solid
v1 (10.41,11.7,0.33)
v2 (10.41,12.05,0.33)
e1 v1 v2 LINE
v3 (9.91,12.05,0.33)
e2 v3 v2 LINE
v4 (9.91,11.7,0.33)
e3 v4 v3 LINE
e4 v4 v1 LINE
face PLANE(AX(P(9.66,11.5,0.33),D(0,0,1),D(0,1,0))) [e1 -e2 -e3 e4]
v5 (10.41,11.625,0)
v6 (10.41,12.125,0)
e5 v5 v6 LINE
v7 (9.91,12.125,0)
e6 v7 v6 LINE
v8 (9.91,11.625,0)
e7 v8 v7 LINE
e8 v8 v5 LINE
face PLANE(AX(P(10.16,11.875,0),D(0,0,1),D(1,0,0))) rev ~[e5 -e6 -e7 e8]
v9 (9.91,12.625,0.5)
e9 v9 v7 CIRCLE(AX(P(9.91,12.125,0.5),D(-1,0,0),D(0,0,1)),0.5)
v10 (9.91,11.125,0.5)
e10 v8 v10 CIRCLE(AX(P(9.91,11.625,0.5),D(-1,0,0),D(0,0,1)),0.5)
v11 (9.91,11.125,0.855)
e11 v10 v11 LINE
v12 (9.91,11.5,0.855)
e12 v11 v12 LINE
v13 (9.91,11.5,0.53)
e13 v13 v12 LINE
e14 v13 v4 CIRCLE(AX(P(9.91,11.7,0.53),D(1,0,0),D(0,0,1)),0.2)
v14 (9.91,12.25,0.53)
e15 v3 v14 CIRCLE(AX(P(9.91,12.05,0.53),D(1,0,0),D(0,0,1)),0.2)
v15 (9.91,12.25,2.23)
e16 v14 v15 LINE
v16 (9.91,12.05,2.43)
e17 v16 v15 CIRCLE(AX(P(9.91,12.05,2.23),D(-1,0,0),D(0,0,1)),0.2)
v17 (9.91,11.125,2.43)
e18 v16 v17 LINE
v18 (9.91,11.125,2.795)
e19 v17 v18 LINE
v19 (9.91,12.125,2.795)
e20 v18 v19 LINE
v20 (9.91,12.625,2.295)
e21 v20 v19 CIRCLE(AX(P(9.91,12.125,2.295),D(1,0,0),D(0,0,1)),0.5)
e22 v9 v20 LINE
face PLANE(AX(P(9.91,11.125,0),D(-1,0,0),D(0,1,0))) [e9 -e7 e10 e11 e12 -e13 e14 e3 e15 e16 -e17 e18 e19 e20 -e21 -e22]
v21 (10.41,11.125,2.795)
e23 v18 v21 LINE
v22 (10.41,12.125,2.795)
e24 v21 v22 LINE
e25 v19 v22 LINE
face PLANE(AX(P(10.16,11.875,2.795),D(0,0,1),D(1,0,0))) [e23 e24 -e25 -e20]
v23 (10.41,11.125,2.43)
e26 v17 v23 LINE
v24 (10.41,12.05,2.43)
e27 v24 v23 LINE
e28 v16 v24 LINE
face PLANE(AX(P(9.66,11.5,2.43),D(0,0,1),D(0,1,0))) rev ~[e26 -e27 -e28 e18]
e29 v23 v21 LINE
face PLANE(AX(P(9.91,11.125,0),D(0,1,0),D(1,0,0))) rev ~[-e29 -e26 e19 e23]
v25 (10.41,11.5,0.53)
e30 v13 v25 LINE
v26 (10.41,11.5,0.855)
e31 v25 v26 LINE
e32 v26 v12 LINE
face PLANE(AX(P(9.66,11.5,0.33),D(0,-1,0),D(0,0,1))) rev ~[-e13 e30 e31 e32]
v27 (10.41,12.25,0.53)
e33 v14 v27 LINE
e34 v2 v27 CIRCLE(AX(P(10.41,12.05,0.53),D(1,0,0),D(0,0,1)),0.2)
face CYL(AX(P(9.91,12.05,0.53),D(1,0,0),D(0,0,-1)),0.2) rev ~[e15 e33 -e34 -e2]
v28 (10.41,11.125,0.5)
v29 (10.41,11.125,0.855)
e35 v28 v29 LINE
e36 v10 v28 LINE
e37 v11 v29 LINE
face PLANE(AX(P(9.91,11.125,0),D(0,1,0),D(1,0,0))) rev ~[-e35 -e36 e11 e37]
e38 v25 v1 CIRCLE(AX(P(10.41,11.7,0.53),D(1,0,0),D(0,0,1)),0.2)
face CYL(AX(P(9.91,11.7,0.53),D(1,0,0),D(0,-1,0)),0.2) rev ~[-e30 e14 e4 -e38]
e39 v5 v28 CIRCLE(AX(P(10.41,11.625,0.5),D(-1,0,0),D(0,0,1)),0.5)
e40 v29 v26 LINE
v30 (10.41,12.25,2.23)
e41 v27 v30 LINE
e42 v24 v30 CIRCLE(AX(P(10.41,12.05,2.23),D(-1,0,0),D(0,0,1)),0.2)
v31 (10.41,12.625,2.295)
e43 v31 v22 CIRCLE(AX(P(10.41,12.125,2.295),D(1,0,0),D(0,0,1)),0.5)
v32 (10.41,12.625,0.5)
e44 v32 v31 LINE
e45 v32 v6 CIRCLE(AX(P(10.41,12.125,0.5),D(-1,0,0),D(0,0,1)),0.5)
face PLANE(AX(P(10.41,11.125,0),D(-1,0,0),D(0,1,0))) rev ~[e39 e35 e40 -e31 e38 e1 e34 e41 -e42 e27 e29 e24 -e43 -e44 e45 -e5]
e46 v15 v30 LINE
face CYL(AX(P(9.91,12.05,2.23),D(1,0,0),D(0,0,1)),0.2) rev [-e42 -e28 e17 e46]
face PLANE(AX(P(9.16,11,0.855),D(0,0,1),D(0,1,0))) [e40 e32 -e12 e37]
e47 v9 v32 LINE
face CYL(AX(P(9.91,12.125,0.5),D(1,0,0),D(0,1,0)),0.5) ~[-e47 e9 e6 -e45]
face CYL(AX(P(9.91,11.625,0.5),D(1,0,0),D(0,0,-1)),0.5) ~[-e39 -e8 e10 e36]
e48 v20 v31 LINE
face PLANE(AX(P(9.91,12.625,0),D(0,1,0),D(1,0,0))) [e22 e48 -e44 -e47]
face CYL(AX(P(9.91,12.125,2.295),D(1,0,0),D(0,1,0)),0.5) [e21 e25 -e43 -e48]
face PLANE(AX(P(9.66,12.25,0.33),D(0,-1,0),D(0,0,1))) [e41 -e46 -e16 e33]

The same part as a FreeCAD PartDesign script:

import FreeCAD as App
import Part
import Sketcher
from FreeCAD import Vector
Q = App.Units.Quantity


def edges_at(feature, points):
    """Names of the edges that pass closest to the given points."""
    edges = feature.Shape.Edges
    near = lambda p: min(range(len(edges)), key=lambda i: edges[i].distToShape(Part.Vertex(*p))[0])
    return sorted({f"Edge{near(p) + 1}" for p in points})


def add_polygon(sketch, points):
    """Adds a closed chain of lines whose ends are joined by coincident constraints."""
    first, n = sketch.GeometryCount, len(points)
    for a, b in zip(points, points[1:] + points[:1]):
        sketch.addGeometry(Part.LineSegment(App.Vector(*a, 0), App.Vector(*b, 0)), False)
    for i in range(n):
        sketch.addConstraint(Sketcher.Constraint("Coincident", first + i, 2, first + (i + 1) % n, 1))

doc = App.newDocument("Part")
body = doc.addObject("PartDesign::Body", "Body")

sketch1 = body.newObject("Sketcher::SketchObject", "Sketch")
sketch1.AttachmentSupport = (doc.getObject("XY_Plane"), [""])
sketch1.MapMode = "FlatFace"
add_polygon(sketch1, [(-0.2, 12.6), (-0.2, 11.1), (0.2, 11.1), (0.2, 12.6)])
sketch1.addConstraint(Sketcher.Constraint("Vertical", 0))
sketch1.addConstraint(Sketcher.Constraint("Horizontal", 1))
sketch1.addConstraint(Sketcher.Constraint("Vertical", 2))
sketch1.addConstraint(Sketcher.Constraint("Horizontal", 3))
sketch1.addConstraint(Sketcher.Constraint("DistanceX", 1, 1, 1, 2, Q("0.5 mm")))
sketch1.addConstraint(Sketcher.Constraint("DistanceY", 0, 2, 0, 1, Q("1.5 mm")))
sketch1.addConstraint(Sketcher.Constraint("DistanceX", 0, 2, -1, 1, Q("0.25 mm")))
sketch1.addConstraint(Sketcher.Constraint("DistanceY", -1, 1, 0, 2, Q("11.125 mm")))
pad1 = body.newObject("PartDesign::Pad", "Pad")
pad1.Profile = sketch1
pad1.Length = 2.795
doc.recompute()

fillet = body.newObject("PartDesign::Fillet", "Fillet")
fillet.Base = (pad1, edges_at(pad1, [(0, 12.625, 0)]))
fillet.Radius = 0.5
doc.recompute()

fillet2 = body.newObject("PartDesign::Fillet", "Fillet001")
fillet2.Base = (fillet, edges_at(fillet, [(0, 12.625, 2.795)]))
fillet2.Radius = 0.5
doc.recompute()

fillet3 = body.newObject("PartDesign::Fillet", "Fillet002")
fillet3.Base = (fillet2, edges_at(fillet2, [(0, 11.125, 0)]))
fillet3.Radius = 0.5

sketch2 = body.newObject("Sketcher::SketchObject", "Sketch001")
sketch2.AttachmentSupport = (doc.getObject("YZ_Plane"), [""])
sketch2.MapMode = "FlatFace"
sketch2.AttachmentOffset = App.Placement(Vector(0, 0, -0.5), App.Rotation())
add_polygon(sketch2, [(11.5, 2.4), (11.5, 0.3), (12.2, 0.3), (12.2, 2.4)])
sketch2.addConstraint(Sketcher.Constraint("Vertical", 0))
sketch2.addConstraint(Sketcher.Constraint("Horizontal", 1))
sketch2.addConstraint(Sketcher.Constraint("Vertical", 2))
sketch2.addConstraint(Sketcher.Constraint("Horizontal", 3))
sketch2.addConstraint(Sketcher.Constraint("DistanceY", 0, 2, 0, 1, Q("2.1 mm")))
sketch2.addConstraint(Sketcher.Constraint("DistanceX", 1, 1, 1, 2, Q("0.75 mm")))
sketch2.addConstraint(Sketcher.Constraint("DistanceX", -1, 1, 0, 2, Q("11.5 mm")))
sketch2.addConstraint(Sketcher.Constraint("DistanceY", -1, 1, 0, 2, Q("0.33 mm")))
pocket1 = body.newObject("PartDesign::Pocket", "Pocket")
pocket1.Profile = sketch2
pocket1.Length = 1
pocket1.Reversed = True
doc.recompute()

fillet4 = body.newObject("PartDesign::Fillet", "Fillet003")
fillet4.Base = (pocket1, edges_at(pocket1, [(0, 11.5, 0.33)]))
fillet4.Radius = 0.2
doc.recompute()

fillet5 = body.newObject("PartDesign::Fillet", "Fillet004")
fillet5.Base = (fillet4, edges_at(fillet4, [(0, 12.25, 0.33)]))
fillet5.Radius = 0.2
doc.recompute()

fillet6 = body.newObject("PartDesign::Fillet", "Fillet005")
fillet6.Base = (fillet5, edges_at(fillet5, [(0, 11.5, 2.43)]))
fillet6.Radius = 0.2
doc.recompute()

fillet7 = body.newObject("PartDesign::Fillet", "Fillet006")
fillet7.Base = (fillet6, edges_at(fillet6, [(0, 12.25, 2.43)]))
fillet7.Radius = 0.2

sketch3 = body.newObject("Sketcher::SketchObject", "Sketch002")
sketch3.AttachmentSupport = (doc.getObject("YZ_Plane"), [""])
sketch3.MapMode = "FlatFace"
sketch3.AttachmentOffset = App.Placement(Vector(0, 0, -1), App.Rotation())
add_polygon(sketch3, [(11, 2.4), (11, 0.9), (12, 0.9), (12, 2.4)])
sketch3.addConstraint(Sketcher.Constraint("Vertical", 0))
sketch3.addConstraint(Sketcher.Constraint("Horizontal", 1))
sketch3.addConstraint(Sketcher.Constraint("Vertical", 2))
sketch3.addConstraint(Sketcher.Constraint("Horizontal", 3))
sketch3.addConstraint(Sketcher.Constraint("DistanceX", 1, 1, 1, 2, Q("1 mm")))
sketch3.addConstraint(Sketcher.Constraint("DistanceX", -1, 1, 0, 2, Q("11 mm")))
sketch3.addConstraint(Sketcher.Constraint("DistanceY", 0, 2, 0, 1, Q("1.575 mm")))
sketch3.addConstraint(Sketcher.Constraint("DistanceY", -1, 1, 2, 2, Q("2.43 mm")))
pocket2 = body.newObject("PartDesign::Pocket", "Pocket001")
pocket2.Profile = sketch3
pocket2.Length = 3
pocket2.Reversed = True
body2 = doc.addObject("PartDesign::Body", "Body001")
doc.recompute()

body.Placement = App.Placement(Vector(10.16, 0, 0), App.Rotation(Vector(0, 0, 1), 0))
boolean = body2.newObject("PartDesign::Boolean", "Boolean")
boolean.Type = "Fuse"
boolean.addObjects([body])

doc.recompute()
